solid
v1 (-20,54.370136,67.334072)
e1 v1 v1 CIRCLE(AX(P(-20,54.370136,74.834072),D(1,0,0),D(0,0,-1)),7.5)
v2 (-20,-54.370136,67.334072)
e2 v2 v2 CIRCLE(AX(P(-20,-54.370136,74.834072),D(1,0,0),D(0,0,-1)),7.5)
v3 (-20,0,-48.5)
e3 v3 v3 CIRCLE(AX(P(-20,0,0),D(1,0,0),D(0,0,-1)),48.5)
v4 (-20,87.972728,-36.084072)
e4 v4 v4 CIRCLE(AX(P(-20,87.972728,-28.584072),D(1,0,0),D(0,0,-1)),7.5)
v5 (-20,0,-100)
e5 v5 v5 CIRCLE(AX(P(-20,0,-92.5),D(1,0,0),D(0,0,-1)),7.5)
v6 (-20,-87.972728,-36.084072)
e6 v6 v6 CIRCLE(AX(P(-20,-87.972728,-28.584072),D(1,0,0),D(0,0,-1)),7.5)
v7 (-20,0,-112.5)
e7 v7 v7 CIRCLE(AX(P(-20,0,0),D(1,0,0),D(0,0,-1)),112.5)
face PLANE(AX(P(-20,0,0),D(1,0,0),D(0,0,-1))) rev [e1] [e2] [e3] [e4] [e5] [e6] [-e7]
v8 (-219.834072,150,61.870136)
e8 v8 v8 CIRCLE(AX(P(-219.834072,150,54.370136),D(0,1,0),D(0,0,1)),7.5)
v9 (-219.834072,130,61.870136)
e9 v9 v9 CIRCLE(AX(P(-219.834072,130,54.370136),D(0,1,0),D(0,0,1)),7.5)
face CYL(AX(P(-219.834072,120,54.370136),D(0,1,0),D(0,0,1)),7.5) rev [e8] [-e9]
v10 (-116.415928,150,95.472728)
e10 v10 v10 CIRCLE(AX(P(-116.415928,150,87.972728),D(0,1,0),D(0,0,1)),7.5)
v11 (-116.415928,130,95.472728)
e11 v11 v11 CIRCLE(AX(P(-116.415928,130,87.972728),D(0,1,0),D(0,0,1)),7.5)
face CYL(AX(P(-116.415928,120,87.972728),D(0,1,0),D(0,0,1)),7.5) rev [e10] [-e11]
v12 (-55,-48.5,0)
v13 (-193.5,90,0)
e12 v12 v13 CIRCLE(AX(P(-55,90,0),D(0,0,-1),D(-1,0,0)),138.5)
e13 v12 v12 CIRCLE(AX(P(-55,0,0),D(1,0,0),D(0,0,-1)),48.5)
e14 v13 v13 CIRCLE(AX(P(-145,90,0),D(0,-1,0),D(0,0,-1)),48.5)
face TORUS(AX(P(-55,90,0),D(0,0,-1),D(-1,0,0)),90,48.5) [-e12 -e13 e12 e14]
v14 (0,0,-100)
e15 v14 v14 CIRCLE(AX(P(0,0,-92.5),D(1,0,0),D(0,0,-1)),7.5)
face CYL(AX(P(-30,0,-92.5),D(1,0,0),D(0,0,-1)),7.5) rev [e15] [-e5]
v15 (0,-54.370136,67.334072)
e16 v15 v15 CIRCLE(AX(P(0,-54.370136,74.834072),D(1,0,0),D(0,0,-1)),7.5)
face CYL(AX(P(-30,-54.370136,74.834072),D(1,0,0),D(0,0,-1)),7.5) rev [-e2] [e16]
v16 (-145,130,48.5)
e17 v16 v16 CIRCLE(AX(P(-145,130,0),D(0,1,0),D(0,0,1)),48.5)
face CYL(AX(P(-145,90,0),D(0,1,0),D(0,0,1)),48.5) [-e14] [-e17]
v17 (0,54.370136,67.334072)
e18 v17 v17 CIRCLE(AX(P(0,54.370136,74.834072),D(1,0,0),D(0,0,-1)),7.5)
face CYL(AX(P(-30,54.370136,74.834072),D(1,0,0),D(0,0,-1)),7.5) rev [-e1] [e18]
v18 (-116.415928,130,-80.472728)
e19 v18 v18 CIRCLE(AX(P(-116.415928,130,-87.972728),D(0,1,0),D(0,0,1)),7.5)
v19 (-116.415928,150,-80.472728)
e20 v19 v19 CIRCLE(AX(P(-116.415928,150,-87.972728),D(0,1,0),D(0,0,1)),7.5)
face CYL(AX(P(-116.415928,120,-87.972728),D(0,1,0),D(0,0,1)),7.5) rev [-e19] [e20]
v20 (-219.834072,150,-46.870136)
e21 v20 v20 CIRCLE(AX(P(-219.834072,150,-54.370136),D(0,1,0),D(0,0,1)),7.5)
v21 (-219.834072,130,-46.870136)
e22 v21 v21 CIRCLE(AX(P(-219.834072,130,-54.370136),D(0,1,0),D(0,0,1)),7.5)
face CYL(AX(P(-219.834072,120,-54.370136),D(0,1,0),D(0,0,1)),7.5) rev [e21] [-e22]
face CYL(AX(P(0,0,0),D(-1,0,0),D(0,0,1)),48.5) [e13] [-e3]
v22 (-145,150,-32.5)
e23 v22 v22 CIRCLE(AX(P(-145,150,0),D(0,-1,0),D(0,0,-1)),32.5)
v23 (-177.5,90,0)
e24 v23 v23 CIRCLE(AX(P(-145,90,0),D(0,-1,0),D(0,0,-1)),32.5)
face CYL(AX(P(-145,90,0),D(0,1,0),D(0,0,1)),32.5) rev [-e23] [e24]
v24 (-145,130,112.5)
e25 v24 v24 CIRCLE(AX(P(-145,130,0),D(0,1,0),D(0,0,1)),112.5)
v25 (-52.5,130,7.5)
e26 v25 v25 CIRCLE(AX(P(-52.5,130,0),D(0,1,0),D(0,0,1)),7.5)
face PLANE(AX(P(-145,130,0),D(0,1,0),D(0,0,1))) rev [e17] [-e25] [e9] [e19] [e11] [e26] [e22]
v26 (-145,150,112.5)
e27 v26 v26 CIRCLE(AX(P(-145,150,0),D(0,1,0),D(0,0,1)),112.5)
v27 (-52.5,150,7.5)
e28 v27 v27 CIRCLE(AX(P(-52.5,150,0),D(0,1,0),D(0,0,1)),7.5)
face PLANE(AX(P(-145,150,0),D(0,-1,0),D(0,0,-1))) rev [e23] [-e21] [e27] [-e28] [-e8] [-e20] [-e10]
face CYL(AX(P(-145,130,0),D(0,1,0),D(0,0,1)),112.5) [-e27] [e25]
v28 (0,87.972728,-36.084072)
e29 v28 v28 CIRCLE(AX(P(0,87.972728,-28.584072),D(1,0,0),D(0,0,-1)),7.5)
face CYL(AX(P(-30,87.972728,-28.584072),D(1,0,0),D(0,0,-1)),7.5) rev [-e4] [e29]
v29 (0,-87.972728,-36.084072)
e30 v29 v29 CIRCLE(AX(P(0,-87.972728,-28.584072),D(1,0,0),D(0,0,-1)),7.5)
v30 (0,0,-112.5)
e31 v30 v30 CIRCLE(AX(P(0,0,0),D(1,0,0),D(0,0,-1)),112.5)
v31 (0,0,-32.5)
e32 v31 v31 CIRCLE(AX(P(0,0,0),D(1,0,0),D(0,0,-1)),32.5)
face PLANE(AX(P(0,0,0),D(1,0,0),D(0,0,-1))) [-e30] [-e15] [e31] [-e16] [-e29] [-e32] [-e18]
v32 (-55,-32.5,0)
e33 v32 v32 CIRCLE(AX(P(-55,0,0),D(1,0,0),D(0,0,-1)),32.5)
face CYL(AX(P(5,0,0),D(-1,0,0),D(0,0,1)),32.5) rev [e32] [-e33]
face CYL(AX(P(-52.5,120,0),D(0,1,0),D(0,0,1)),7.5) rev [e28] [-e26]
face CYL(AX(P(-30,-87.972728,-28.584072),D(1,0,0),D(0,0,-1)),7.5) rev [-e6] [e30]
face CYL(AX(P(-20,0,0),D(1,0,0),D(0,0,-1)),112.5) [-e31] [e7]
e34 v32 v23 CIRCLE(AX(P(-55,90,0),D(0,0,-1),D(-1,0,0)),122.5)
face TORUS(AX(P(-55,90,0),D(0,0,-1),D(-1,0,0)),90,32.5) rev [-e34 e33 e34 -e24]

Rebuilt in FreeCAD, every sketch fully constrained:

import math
import FreeCAD as App
import Part
import Sketcher

doc = App.newDocument("Part")
params = doc.addObject("Spreadsheet::Sheet", "Params")
for row, (alias, value) in enumerate([
    ("sketch1_diameter", "97 mm"),
    ("sketch2_radius", "90 mm"),
    ("sketch2_width", "55 mm"),
    ("sketch2_height", "60 mm"),
    ("sketch3_diameter", "225 mm"),
    ("pad1_length", "20 mm"),
    ("sketch4_diameter", "225 mm"),
    ("pad2_length", "20 mm"),
    ("sketch5_diameter", "65 mm"),
    ("sketch6_radius", "90 mm"),
    ("sketch6_width", "55 mm"),
    ("sketch6_height", "60 mm"),
    ("sketch7_diameter", "15 mm"),
    ("pocket1_length", "30 mm"),
    ("sketch8_diameter", "15 mm"),
    ("pocket2_length", "30 mm"),
], start=1):
    params.set(f"A{row}", alias)
    params.set(f"B{row}", "=" + value)
    params.setAlias(f"B{row}", alias)

body = doc.addObject("PartDesign::Body", "Body")

# Sketch on YZ plane
sketch1 = doc.addObject("Sketcher::SketchObject", "Sketch")
body.addObject(sketch1)
sketch1.AttachmentSupport = (doc.YZ_Plane, [""])
sketch1.MapMode = "FlatFace"
sketch1.addGeometry(Part.Circle(App.Vector(0, 0, 0), App.Vector(0, 0, 1), 48), False)
sketch1.addConstraint(Sketcher.Constraint("Coincident", 0, 3, -1, 1))
sketch1.addConstraint(Sketcher.Constraint("Diameter", 0, 97.0))
sketch1.setExpression("Constraints[1]", "Params.sketch1_diameter")

# Sketch on XY plane
sketch2 = doc.addObject("Sketcher::SketchObject", "Sketch001")
body.addObject(sketch2)
sketch2.AttachmentSupport = (doc.XY_Plane, [""])
sketch2.MapMode = "FlatFace"
sketch2.addGeometry(Part.LineSegment(App.Vector(0, 0, 0), App.Vector(-55, 0, 0)), False)
sketch2.addGeometry(Part.ArcOfCircle(Part.Circle(App.Vector(-55, 90, 0), App.Vector(0, 0, 1), 90), math.radians(180), math.radians(270)), False)
sketch2.addGeometry(Part.LineSegment(App.Vector(-145, 90, 0), App.Vector(-145, 150, 0)), False)
sketch2.addConstraint(Sketcher.Constraint("Tangent", 0, 2, 1, 2))
sketch2.addConstraint(Sketcher.Constraint("Tangent", 1, 1, 2, 1))
sketch2.addConstraint(Sketcher.Constraint("Horizontal", 0))
sketch2.addConstraint(Sketcher.Constraint("Vertical", 2))
sketch2.addConstraint(Sketcher.Constraint("Coincident", 0, 1, -1, 1))
sketch2.addConstraint(Sketcher.Constraint("Radius", 1, 90.0))
sketch2.addConstraint(Sketcher.Constraint("DistanceX", 0, 2, 0, 1, 55.0))
sketch2.addConstraint(Sketcher.Constraint("DistanceY", 2, 1, 2, 2, 60.0))
sketch2.setExpression("Constraints[5]", "Params.sketch2_radius")
sketch2.setExpression("Constraints[6]", "Params.sketch2_width")
sketch2.setExpression("Constraints[7]", "Params.sketch2_height")
doc.recompute()

additivepipe = doc.addObject("PartDesign::AdditivePipe", "AdditivePipe")
body.addObject(additivepipe)
additivepipe.Profile = sketch1
additivepipe.Spine = (sketch2, ["Edge1", "Edge2", "Edge3"])

# Sketch on YZ plane
sketch3 = doc.addObject("Sketcher::SketchObject", "Sketch002")
body.addObject(sketch3)
sketch3.AttachmentSupport = (doc.YZ_Plane, [""])
sketch3.MapMode = "FlatFace"
sketch3.addGeometry(Part.Circle(App.Vector(0, 0, 0), App.Vector(0, 0, 1), 112), False)
sketch3.addConstraint(Sketcher.Constraint("Coincident", 0, 3, -1, 1))
sketch3.addConstraint(Sketcher.Constraint("Diameter", 0, 225.0))
sketch3.setExpression("Constraints[1]", "Params.sketch3_diameter")
pad1 = doc.addObject("PartDesign::Pad", "Pad")
body.addObject(pad1)
pad1.Profile = sketch3
pad1.setExpression("Length", "Params.pad1_length")
pad1.Reversed = True

# Sketch on XZ plane
sketch4 = doc.addObject("Sketcher::SketchObject", "Sketch003")
body.addObject(sketch4)
sketch4.AttachmentSupport = (doc.XZ_Plane, [""])
sketch4.MapMode = "FlatFace"
sketch4.AttachmentOffset = App.Placement(App.Vector(0, 0, -150), App.Rotation())
sketch4.addGeometry(Part.Circle(App.Vector(-145, 0, 0), App.Vector(0, 0, 1), 112), False)
sketch4.addConstraint(Sketcher.Constraint("PointOnObject", 0, 3, -1))
sketch4.addConstraint(Sketcher.Constraint("Diameter", 0, 225.0))
sketch4.addConstraint(Sketcher.Constraint("DistanceX", 0, 3, -1, 1, 145.0))
sketch4.setExpression("Constraints[1]", "Params.sketch4_diameter")
pad2 = doc.addObject("PartDesign::Pad", "Pad001")
body.addObject(pad2)
pad2.Profile = sketch4
pad2.setExpression("Length", "Params.pad2_length")

# Sketch on YZ plane
sketch5 = doc.addObject("Sketcher::SketchObject", "Sketch004")
body.addObject(sketch5)
sketch5.AttachmentSupport = (doc.YZ_Plane, [""])
sketch5.MapMode = "FlatFace"
sketch5.addGeometry(Part.Circle(App.Vector(0, 0, 0), App.Vector(0, 0, 1), 32), False)
sketch5.addConstraint(Sketcher.Constraint("Coincident", 0, 3, -1, 1))
sketch5.addConstraint(Sketcher.Constraint("Diameter", 0, 65.0))
sketch5.setExpression("Constraints[1]", "Params.sketch5_diameter")

# Sketch on XY plane
sketch6 = doc.addObject("Sketcher::SketchObject", "Sketch005")
body.addObject(sketch6)
sketch6.AttachmentSupport = (doc.XY_Plane, [""])
sketch6.MapMode = "FlatFace"
sketch6.addGeometry(Part.LineSegment(App.Vector(0, 0, 0), App.Vector(-55, 0, 0)), False)
sketch6.addGeometry(Part.ArcOfCircle(Part.Circle(App.Vector(-55, 90, 0), App.Vector(0, 0, 1), 90), math.radians(180), math.radians(270)), False)
sketch6.addGeometry(Part.LineSegment(App.Vector(-145, 90, 0), App.Vector(-145, 150, 0)), False)
sketch6.addConstraint(Sketcher.Constraint("Tangent", 0, 2, 1, 2))
sketch6.addConstraint(Sketcher.Constraint("Tangent", 1, 1, 2, 1))
sketch6.addConstraint(Sketcher.Constraint("Horizontal", 0))
sketch6.addConstraint(Sketcher.Constraint("Vertical", 2))
sketch6.addConstraint(Sketcher.Constraint("Coincident", 0, 1, -1, 1))
sketch6.addConstraint(Sketcher.Constraint("Radius", 1, 90.0))
sketch6.addConstraint(Sketcher.Constraint("DistanceX", 0, 2, 0, 1, 55.0))
sketch6.addConstraint(Sketcher.Constraint("DistanceY", 2, 1, 2, 2, 60.0))
sketch6.setExpression("Constraints[5]", "Params.sketch6_radius")
sketch6.setExpression("Constraints[6]", "Params.sketch6_width")
sketch6.setExpression("Constraints[7]", "Params.sketch6_height")
doc.recompute()

subtractivepipe = doc.addObject("PartDesign::SubtractivePipe", "SubtractivePipe")
body.addObject(subtractivepipe)
subtractivepipe.Profile = sketch5
subtractivepipe.Spine = (sketch6, ["Edge1", "Edge2", "Edge3"])

# Sketch on XZ plane
sketch7 = doc.addObject("Sketcher::SketchObject", "Sketch006")
body.addObject(sketch7)
sketch7.AttachmentSupport = (doc.XZ_Plane, [""])
sketch7.MapMode = "FlatFace"
sketch7.AttachmentOffset = App.Placement(App.Vector(0, 0, -150), App.Rotation())
sketch7.addGeometry(Part.Circle(App.Vector(-52, 0, 0), App.Vector(0, 0, 1), 8), False)
sketch7.addGeometry(Part.Circle(App.Vector(-116, 88, 0), App.Vector(0, 0, 1), 8), False)
sketch7.addGeometry(Part.Circle(App.Vector(-220, 54, 0), App.Vector(0, 0, 1), 8), False)
sketch7.addGeometry(Part.Circle(App.Vector(-220, -54, 0), App.Vector(0, 0, 1), 8), False)
sketch7.addGeometry(Part.Circle(App.Vector(-116, -88, 0), App.Vector(0, 0, 1), 8), False)
sketch7.addConstraint(Sketcher.Constraint("Equal", 0, 1))
sketch7.addConstraint(Sketcher.Constraint("Equal", 1, 2))
sketch7.addConstraint(Sketcher.Constraint("Equal", 2, 3))
sketch7.addConstraint(Sketcher.Constraint("Equal", 3, 4))
sketch7.addConstraint(Sketcher.Constraint("Symmetric", 2, 3, 3, 3, -1))
sketch7.addConstraint(Sketcher.Constraint("Symmetric", 1, 3, 4, 3, -1))
sketch7.addConstraint(Sketcher.Constraint("PointOnObject", 0, 3, -1))
sketch7.addConstraint(Sketcher.Constraint("Diameter", 0, 15.0))
sketch7.addConstraint(Sketcher.Constraint("DistanceX", 0, 3, -1, 1, 52.5))
sketch7.addConstraint(Sketcher.Constraint("DistanceX", 1, 3, -1, 1, 116.415928))
sketch7.addConstraint(Sketcher.Constraint("DistanceX", 2, 3, -1, 1, 219.834072))
sketch7.addConstraint(Sketcher.Constraint("DistanceY", 2, 3, 1, 3, 33.602592))
sketch7.addConstraint(Sketcher.Constraint("DistanceY", 3, 3, 2, 3, 108.740272))
sketch7.setExpression("Constraints[7]", "Params.sketch7_diameter")
pocket1 = doc.addObject("PartDesign::Pocket", "Pocket")
body.addObject(pocket1)
pocket1.Profile = sketch7
pocket1.setExpression("Length", "Params.pocket1_length")
pocket1.Reversed = True

# Sketch on YZ plane
sketch8 = doc.addObject("Sketcher::SketchObject", "Sketch007")
body.addObject(sketch8)
sketch8.AttachmentSupport = (doc.YZ_Plane, [""])
sketch8.MapMode = "FlatFace"
sketch8.addGeometry(Part.Circle(App.Vector(0, -92, 0), App.Vector(0, 0, 1), 8), False)
sketch8.addGeometry(Part.Circle(App.Vector(-88, -29, 0), App.Vector(0, 0, 1), 8), False)
sketch8.addGeometry(Part.Circle(App.Vector(-54, 75, 0), App.Vector(0, 0, 1), 8), False)
sketch8.addGeometry(Part.Circle(App.Vector(54, 75, 0), App.Vector(0, 0, 1), 8), False)
sketch8.addGeometry(Part.Circle(App.Vector(88, -29, 0), App.Vector(0, 0, 1), 8), False)
sketch8.addConstraint(Sketcher.Constraint("Equal", 0, 1))
sketch8.addConstraint(Sketcher.Constraint("Equal", 1, 2))
sketch8.addConstraint(Sketcher.Constraint("Equal", 2, 3))
sketch8.addConstraint(Sketcher.Constraint("Equal", 3, 4))
sketch8.addConstraint(Sketcher.Constraint("Symmetric", 2, 3, 3, 3, -2))
sketch8.addConstraint(Sketcher.Constraint("Symmetric", 1, 3, 4, 3, -2))
sketch8.addConstraint(Sketcher.Constraint("PointOnObject", 0, 3, -2))
sketch8.addConstraint(Sketcher.Constraint("Diameter", 0, 15.0))
sketch8.addConstraint(Sketcher.Constraint("DistanceY", 0, 3, -1, 1, 92.5))
sketch8.addConstraint(Sketcher.Constraint("DistanceY", 1, 3, -1, 1, 28.584072))
sketch8.addConstraint(Sketcher.Constraint("DistanceY", -1, 1, 2, 3, 74.834072))
sketch8.addConstraint(Sketcher.Constraint("DistanceX", 1, 3, 2, 3, 33.602592))
sketch8.addConstraint(Sketcher.Constraint("DistanceX", 2, 3, 3, 3, 108.740272))
sketch8.setExpression("Constraints[7]", "Params.sketch8_diameter")
pocket2 = doc.addObject("PartDesign::Pocket", "Pocket001")
body.addObject(pocket2)
pocket2.Profile = sketch8
pocket2.setExpression("Length", "Params.pocket2_length")

doc.recompute()
